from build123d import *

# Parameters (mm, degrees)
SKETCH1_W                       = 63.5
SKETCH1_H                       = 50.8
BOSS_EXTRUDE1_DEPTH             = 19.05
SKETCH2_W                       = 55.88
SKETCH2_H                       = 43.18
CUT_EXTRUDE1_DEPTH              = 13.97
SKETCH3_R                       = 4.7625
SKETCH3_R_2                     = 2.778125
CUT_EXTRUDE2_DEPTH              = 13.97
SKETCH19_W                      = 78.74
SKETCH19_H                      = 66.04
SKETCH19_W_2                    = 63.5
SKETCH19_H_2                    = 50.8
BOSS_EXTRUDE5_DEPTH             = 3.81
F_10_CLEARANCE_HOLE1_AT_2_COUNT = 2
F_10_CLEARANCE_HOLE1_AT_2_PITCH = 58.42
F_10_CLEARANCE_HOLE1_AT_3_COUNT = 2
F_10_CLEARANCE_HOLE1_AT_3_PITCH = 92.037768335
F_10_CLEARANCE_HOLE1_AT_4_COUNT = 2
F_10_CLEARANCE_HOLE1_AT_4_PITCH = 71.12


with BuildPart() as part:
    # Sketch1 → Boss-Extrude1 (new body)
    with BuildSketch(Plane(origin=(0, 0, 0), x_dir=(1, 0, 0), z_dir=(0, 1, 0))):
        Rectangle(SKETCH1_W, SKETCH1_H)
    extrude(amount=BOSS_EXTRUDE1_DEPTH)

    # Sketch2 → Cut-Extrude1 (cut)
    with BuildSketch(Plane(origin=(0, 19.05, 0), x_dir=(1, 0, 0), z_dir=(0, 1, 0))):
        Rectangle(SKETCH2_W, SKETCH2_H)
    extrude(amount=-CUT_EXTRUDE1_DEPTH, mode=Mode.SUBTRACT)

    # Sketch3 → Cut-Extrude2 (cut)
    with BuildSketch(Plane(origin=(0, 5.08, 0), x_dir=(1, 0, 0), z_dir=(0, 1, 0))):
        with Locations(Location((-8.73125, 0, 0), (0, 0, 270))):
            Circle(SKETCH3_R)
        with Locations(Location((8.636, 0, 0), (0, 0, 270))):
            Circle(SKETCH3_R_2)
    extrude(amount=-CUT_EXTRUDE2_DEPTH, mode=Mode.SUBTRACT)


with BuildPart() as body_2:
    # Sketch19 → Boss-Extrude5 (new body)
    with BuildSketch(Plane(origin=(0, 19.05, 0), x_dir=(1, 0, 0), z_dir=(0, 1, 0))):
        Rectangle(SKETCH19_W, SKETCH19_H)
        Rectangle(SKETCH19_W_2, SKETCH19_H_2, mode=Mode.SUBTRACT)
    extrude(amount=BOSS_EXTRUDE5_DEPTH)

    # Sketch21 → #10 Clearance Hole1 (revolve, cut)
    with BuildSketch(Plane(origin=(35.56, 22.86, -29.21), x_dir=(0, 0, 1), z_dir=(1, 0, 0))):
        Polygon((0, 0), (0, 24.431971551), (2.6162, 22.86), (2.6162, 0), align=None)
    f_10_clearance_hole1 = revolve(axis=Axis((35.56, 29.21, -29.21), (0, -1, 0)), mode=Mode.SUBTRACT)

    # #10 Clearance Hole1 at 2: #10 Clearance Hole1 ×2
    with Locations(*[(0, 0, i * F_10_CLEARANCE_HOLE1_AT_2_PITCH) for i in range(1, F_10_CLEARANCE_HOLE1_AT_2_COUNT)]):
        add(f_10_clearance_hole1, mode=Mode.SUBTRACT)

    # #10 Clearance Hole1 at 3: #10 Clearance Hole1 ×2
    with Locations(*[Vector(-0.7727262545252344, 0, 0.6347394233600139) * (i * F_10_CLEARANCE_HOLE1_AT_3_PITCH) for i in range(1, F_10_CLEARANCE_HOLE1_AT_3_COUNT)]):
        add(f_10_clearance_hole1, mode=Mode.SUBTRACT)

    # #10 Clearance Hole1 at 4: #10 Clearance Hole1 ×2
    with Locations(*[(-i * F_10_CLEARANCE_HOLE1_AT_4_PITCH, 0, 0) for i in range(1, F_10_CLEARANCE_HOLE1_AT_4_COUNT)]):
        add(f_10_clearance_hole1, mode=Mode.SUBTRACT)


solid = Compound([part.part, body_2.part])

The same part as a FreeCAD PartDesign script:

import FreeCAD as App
import Part
import Sketcher

V = App.Vector
Q = App.Units.Quantity


def add_polygon(sketch, points):
    """Adds a closed chain of lines whose ends are joined by coincident constraints."""
    first, n = sketch.GeometryCount, len(points)
    for a, b in zip(points, points[1:] + points[:1]):
        sketch.addGeometry(Part.LineSegment(App.Vector(*a, 0), App.Vector(*b, 0)), False)
    for i in range(n):
        sketch.addConstraint(Sketcher.Constraint("Coincident", first + i, 2, first + (i + 1) % n, 1))

doc = App.newDocument("Part")
params = doc.addObject("Spreadsheet::Sheet", "Params")
for row, (alias, value) in enumerate([
    ("sketch1_height", "2 in"),
    ("sketch1_width", "2.5 in"),
    ("pad1_length", "0.75 in"),
    ("sketch2_width", "2.2 in"),
    ("sketch2_height", "1.7 in"),
    ("pocket1_length", "0.55 in"),
    ("sketch3_diameter", "0.375 in"),
    ("sketch3_diameter2", "0.21875 in"),
    ("pocket2_length", "0.55 in"),
    ("sketch4_height", "2 in"),
    ("sketch4_width", "3.1 in"),
    ("sketch4_width2", "2.5 in"),
    ("sketch4_height2", "2.6 in"),
    ("pad2_length", "0.15 in"),
    ("sketch5_width", "0.9 in"),
    ("sketch5_height", "0.103 in"),
    ("groove_angle", "360 deg"),
    ("linearpattern_pitch", "2.3 in"),
    ("linearpattern2_pitch", "92.037768 mm"),
    ("linearpattern3_pitch", "2.8 in"),
], start=1):
    params.set(f"A{row}", alias)
    params.set(f"B{row}", "=" + value)
    params.setAlias(f"B{row}", alias)

body = doc.addObject("PartDesign::Body", "Body")

# Sketch on XZ plane
sketch1 = body.newObject("Sketcher::SketchObject", "Sketch")
sketch1.AttachmentSupport = (doc.getObject("XZ_Plane"), [""])
sketch1.MapMode = "FlatFace"
add_polygon(sketch1, [(-31.75, -25.4), (-31.75, 25.4), (31.75, 25.4), (31.75, -25.4)])  # lines 0-3
sketch1.addConstraint([
    Sketcher.Constraint("Vertical", 0),
    Sketcher.Constraint("Horizontal", 1),
    Sketcher.Constraint("Vertical", 2),
    Sketcher.Constraint("Horizontal", 3),
    Sketcher.Constraint("Symmetric", 0, 2, 2, 2, -1, 1),
    Sketcher.Constraint("DistanceY", 0, 1, 0, 2, Q("2 in")),
    Sketcher.Constraint("DistanceX", 1, 1, 1, 2, Q("2.5 in")),
])
sketch1.setExpression("Constraints[9]", "Params.sketch1_height")
sketch1.setExpression("Constraints[10]", "Params.sketch1_width")
pad1 = body.newObject("PartDesign::Pad", "Pad")
pad1.Profile = sketch1
pad1.setExpression("Length", "Params.pad1_length")
pad1.Reversed = True

# Sketch on XZ plane
sketch2 = body.newObject("Sketcher::SketchObject", "Sketch001")
sketch2.AttachmentSupport = (doc.getObject("XZ_Plane"), [""])
sketch2.MapMode = "FlatFace"
sketch2.AttachmentOffset = App.Placement(V(0, 0, -0.75 * 25.4), App.Rotation())
add_polygon(sketch2, [(-27.94, -21.59), (-27.94, 21.59), (27.94, 21.59), (27.94, -21.59)])  # lines 0-3
sketch2.addConstraint([
    Sketcher.Constraint("Vertical", 0),
    Sketcher.Constraint("Horizontal", 1),
    Sketcher.Constraint("Vertical", 2),
    Sketcher.Constraint("Horizontal", 3),
    Sketcher.Constraint("Symmetric", 0, 2, 2, 2, -1, 1),
    Sketcher.Constraint("DistanceX", 1, 1, 1, 2, Q("2.2 in")),
    Sketcher.Constraint("DistanceY", 0, 1, 0, 2, Q("1.7 in")),
])
sketch2.setExpression("Constraints[9]", "Params.sketch2_width")
sketch2.setExpression("Constraints[10]", "Params.sketch2_height")
pocket1 = body.newObject("PartDesign::Pocket", "Pocket")
pocket1.Profile = sketch2
pocket1.setExpression("Length", "Params.pocket1_length")
pocket1.Reversed = True

# Sketch on XZ plane
sketch3 = body.newObject("Sketcher::SketchObject", "Sketch002")
sketch3.AttachmentSupport = (doc.getObject("XZ_Plane"), [""])
sketch3.MapMode = "FlatFace"
sketch3.AttachmentOffset = App.Placement(V(0, 0, -0.2 * 25.4), App.Rotation())
sketch3.addGeometry([
    Part.Circle(V(-8.73125, 0, 0), V(0, 0, 1), 4.7625),
    Part.Circle(V(8.636, 0, 0), V(0, 0, 1), 2.778125),
], False)
sketch3.addConstraint([
    Sketcher.Constraint("PointOnObject", 0, 3, -1),
    Sketcher.Constraint("PointOnObject", 1, 3, -1),
    Sketcher.Constraint("Diameter", 0, Q("0.375 in")),
    Sketcher.Constraint("Diameter", 1, Q("0.21875 in")),
    Sketcher.Constraint("DistanceX", -1, 1, 1, 3, Q("0.34 in")),
    Sketcher.Constraint("DistanceX", 0, 3, -1, 1, Q("0.34375 in")),
])
sketch3.setExpression("Constraints[2]", "Params.sketch3_diameter")
sketch3.setExpression("Constraints[3]", "Params.sketch3_diameter2")
pocket2 = body.newObject("PartDesign::Pocket", "Pocket001")
pocket2.Profile = sketch3
pocket2.setExpression("Length", "Params.pocket2_length")
pocket2.Reversed = True
body2 = doc.addObject("PartDesign::Body", "Body001")

# Sketch on XZ plane
sketch4 = body2.newObject("Sketcher::SketchObject", "Sketch003")
sketch4.AttachmentSupport = (doc.getObject("XZ_Plane001"), [""])
sketch4.MapMode = "FlatFace"
sketch4.AttachmentOffset = App.Placement(V(0, 0, -0.75 * 25.4), App.Rotation())
add_polygon(sketch4, [(-39.37, -33.02), (-39.37, 33.02), (39.37, 33.02), (39.37, -33.02)])  # lines 0-3
add_polygon(sketch4, [(31.75, 25.4), (-31.75, 25.4), (-31.75, -25.4), (31.75, -25.4)])  # lines 4-7
sketch4.addConstraint([
    Sketcher.Constraint("Vertical", 0),
    Sketcher.Constraint("Horizontal", 1),
    Sketcher.Constraint("Vertical", 2),
    Sketcher.Constraint("Horizontal", 3),
    Sketcher.Constraint("Horizontal", 4),
    Sketcher.Constraint("Vertical", 5),
    Sketcher.Constraint("Horizontal", 6),
    Sketcher.Constraint("Vertical", 7),
    Sketcher.Constraint("Symmetric", 0, 2, 2, 2, -1, 1),
    Sketcher.Constraint("Symmetric", 4, 2, 6, 2, -1, 1),
    Sketcher.Constraint("DistanceY", 5, 2, 5, 1, Q("2 in")),
    Sketcher.Constraint("DistanceX", 1, 1, 1, 2, Q("3.1 in")),
    Sketcher.Constraint("DistanceX", 4, 2, 4, 1, Q("2.5 in")),
    Sketcher.Constraint("DistanceY", 0, 1, 0, 2, Q("2.6 in")),
])
sketch4.setExpression("Constraints[18]", "Params.sketch4_height")
sketch4.setExpression("Constraints[19]", "Params.sketch4_width")
sketch4.setExpression("Constraints[20]", "Params.sketch4_width2")
sketch4.setExpression("Constraints[21]", "Params.sketch4_height2")
pad2 = body2.newObject("PartDesign::Pad", "Pad001")
pad2.Profile = sketch4
pad2.setExpression("Length", "Params.pad2_length")
pad2.Reversed = True

# Sketch on YZ plane
sketch5 = body2.newObject("Sketcher::SketchObject", "Sketch004")
sketch5.AttachmentSupport = (doc.getObject("YZ_Plane001"), [""])
sketch5.MapMode = "FlatFace"
sketch5.AttachmentOffset = App.Placement(V(0, 0, 1.4 * 25.4), App.Rotation())
add_polygon(sketch5, [(-1.571972, -29.21), (22.86, -29.21), (22.86, -26.5938), (0, -26.5938)])  # lines 0-3
sketch5.addGeometry(Part.LineSegment(V(22.86, -29.21, 0), V(-1.571972, -29.21, 0)), True)  # axis
sketch5.addConstraint([
    Sketcher.Constraint("Horizontal", 0),
    Sketcher.Constraint("Vertical", 1),
    Sketcher.Constraint("Horizontal", 2),
    Sketcher.Constraint("Horizontal", 4),
    Sketcher.Constraint("Coincident", 4, 1, 0, 2),
    Sketcher.Constraint("PointOnObject", 2, 2, -2),
    Sketcher.Constraint("Equal", 0, 4),
    Sketcher.Constraint("DistanceX", 2, 2, 2, 1, Q("0.9 in")),
    Sketcher.Constraint("Angle", 3, Q("-121 deg")),
    Sketcher.Constraint("DistanceY", 1, 1, 1, 2, Q("0.103 in")),
    Sketcher.Constraint("DistanceY", 0, 2, -1, 1, Q("1.15 in")),
])
sketch5.setExpression("Constraints[11]", "Params.sketch5_width")
sketch5.setExpression("Constraints[13]", "Params.sketch5_height")
groove = body2.newObject("PartDesign::Groove", "Groove")
groove.Profile = sketch5
groove.ReferenceAxis = (sketch5, ["Axis0"])
groove.setExpression("Angle", "Params.groove_angle")
doc.recompute()

linearpattern = body2.newObject("PartDesign::LinearPattern", "LinearPattern")
linearpattern.Originals = [groove]
linearpattern.Direction = (doc.getObject("Z_Axis001"), [""])
linearpattern.Mode = "offset"
linearpattern.setExpression("Offset", "Params.linearpattern_pitch")
linearpattern.Occurrences = 2
body2.Tip = linearpattern
doc.recompute()

datumline = body2.newObject("PartDesign::Line", "DatumLine")
datumline.Placement = App.Placement(V(0, 0, 0), App.Rotation(V(0, 0, 1), V(-0.772726255, 0, 0.634739423)))
linearpattern2 = body2.newObject("PartDesign::LinearPattern", "LinearPattern001")
linearpattern2.Originals = [groove]
linearpattern2.Direction = (datumline, [""])
linearpattern2.Mode = "offset"
linearpattern2.setExpression("Offset", "Params.linearpattern2_pitch")
linearpattern2.Occurrences = 2
body2.Tip = linearpattern2
doc.recompute()

linearpattern3 = body2.newObject("PartDesign::LinearPattern", "LinearPattern002")
linearpattern3.Originals = [groove]
linearpattern3.Direction = (doc.getObject("X_Axis001"), [""])
linearpattern3.Mode = "offset"
linearpattern3.setExpression("Offset", "Params.linearpattern3_pitch")
linearpattern3.Occurrences = 2
linearpattern3.Reversed = True
body2.Tip = linearpattern3

doc.recompute()
